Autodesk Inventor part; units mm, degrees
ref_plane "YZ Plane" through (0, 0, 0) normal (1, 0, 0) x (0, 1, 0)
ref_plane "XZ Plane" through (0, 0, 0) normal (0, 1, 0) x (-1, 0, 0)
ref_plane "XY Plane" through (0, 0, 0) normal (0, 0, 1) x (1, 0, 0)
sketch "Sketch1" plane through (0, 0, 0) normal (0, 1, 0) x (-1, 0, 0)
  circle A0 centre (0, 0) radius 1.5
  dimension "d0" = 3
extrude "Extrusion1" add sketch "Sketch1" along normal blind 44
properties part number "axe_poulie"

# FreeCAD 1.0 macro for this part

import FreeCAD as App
import Part
import Sketcher

V = App.Vector

doc = App.newDocument("Part")
body = doc.addObject("PartDesign::Body", "Body")

# Sketch on XZ plane
sketch1 = doc.addObject("Sketcher::SketchObject", "Sketch")
body.addObject(sketch1)
sketch1.AttachmentSupport = (doc.XZ_Plane, [""])
sketch1.MapMode = "FlatFace"
sketch1.addGeometry(Part.Circle(V(0, 0, 0), V(0, 0, 1), 1.5), False)
sketch1.addConstraint(Sketcher.Constraint("Coincident", 0, 3, -1, 1))
sketch1.addConstraint(Sketcher.Constraint("Diameter", 0, 3.0))
pad1 = doc.addObject("PartDesign::Pad", "Pad")
body.addObject(pad1)
pad1.Profile = sketch1
pad1.Length = 44
pad1.Reversed = True

doc.recompute()
